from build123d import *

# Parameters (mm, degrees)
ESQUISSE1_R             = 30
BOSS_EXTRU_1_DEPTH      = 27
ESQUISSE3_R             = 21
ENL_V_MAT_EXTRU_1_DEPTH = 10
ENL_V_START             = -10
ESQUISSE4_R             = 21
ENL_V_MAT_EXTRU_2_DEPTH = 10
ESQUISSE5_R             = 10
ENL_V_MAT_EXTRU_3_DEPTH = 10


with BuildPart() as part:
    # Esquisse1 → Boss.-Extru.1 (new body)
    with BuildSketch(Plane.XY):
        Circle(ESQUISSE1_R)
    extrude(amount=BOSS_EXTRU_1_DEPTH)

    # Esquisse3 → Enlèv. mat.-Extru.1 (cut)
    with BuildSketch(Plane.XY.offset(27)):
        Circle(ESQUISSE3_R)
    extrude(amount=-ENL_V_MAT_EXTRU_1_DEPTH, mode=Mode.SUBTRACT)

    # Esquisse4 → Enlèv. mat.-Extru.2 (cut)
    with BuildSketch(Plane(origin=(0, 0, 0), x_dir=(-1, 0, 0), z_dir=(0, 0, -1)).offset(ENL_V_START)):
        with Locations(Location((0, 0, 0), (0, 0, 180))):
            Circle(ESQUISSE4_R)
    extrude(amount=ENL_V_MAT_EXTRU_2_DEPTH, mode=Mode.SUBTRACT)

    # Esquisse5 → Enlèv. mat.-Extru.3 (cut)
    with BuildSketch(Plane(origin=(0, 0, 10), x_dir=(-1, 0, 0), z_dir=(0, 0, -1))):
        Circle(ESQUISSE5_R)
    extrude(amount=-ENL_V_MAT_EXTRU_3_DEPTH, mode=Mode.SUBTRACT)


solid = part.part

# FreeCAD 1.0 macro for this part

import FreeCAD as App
import Part
import Sketcher

V = App.Vector

doc = App.newDocument("Part")
body = doc.addObject("PartDesign::Body", "Body")

sketch1 = body.newObject("Sketcher::SketchObject", "Sketch")
sketch1.AttachmentSupport = (doc.getObject("XY_Plane"), [""])
sketch1.MapMode = "FlatFace"
sketch1.addGeometry(Part.Circle(V(0, 0, 0), V(0, 0, 1), 30), False)
sketch1.addConstraint(Sketcher.Constraint("Coincident", 0, 3, -1, 1))
sketch1.addConstraint(Sketcher.Constraint("Diameter", 0, 60.0))
pad1 = body.newObject("PartDesign::Pad", "Pad")
pad1.Profile = sketch1
pad1.Length = 27

sketch2 = body.newObject("Sketcher::SketchObject", "Sketch001")
sketch2.AttachmentSupport = (doc.getObject("XY_Plane"), [""])
sketch2.MapMode = "FlatFace"
sketch2.AttachmentOffset = App.Placement(V(0, 0, 27), App.Rotation())
sketch2.addGeometry(Part.Circle(V(0, 0, 0), V(0, 0, 1), 21), False)
sketch2.addConstraint(Sketcher.Constraint("Coincident", 0, 3, -1, 1))
sketch2.addConstraint(Sketcher.Constraint("Diameter", 0, 42.0))
pocket1 = body.newObject("PartDesign::Pocket", "Pocket")
pocket1.Profile = sketch2
pocket1.Length = 10

sketch3 = body.newObject("Sketcher::SketchObject", "Sketch002")
sketch3.AttachmentSupport = (doc.getObject("XY_Plane"), [""])
sketch3.MapMode = "FlatFace"
sketch3.AttachmentOffset = App.Placement(V(0, 0, 10), App.Rotation())
sketch3.addGeometry(Part.Circle(V(0, 0, 0), V(0, 0, 1), 21), False)
sketch3.addConstraint(Sketcher.Constraint("Coincident", 0, 3, -1, 1))
sketch3.addConstraint(Sketcher.Constraint("Diameter", 0, 42.0))
pocket2 = body.newObject("PartDesign::Pocket", "Pocket001")
pocket2.Profile = sketch3
pocket2.Length = 10

sketch4 = body.newObject("Sketcher::SketchObject", "Sketch003")
sketch4.AttachmentSupport = (doc.getObject("XY_Plane"), [""])
sketch4.MapMode = "FlatFace"
sketch4.AttachmentOffset = App.Placement(V(0, 0, 10), App.Rotation())
sketch4.addGeometry(Part.Circle(V(0, 0, 0), V(0, 0, 1), 10), False)
sketch4.addConstraint(Sketcher.Constraint("Coincident", 0, 3, -1, 1))
sketch4.addConstraint(Sketcher.Constraint("Diameter", 0, 20.0))
pocket3 = body.newObject("PartDesign::Pocket", "Pocket002")
pocket3.Profile = sketch4
pocket3.Length = 10
pocket3.Reversed = True

doc.recompute()
